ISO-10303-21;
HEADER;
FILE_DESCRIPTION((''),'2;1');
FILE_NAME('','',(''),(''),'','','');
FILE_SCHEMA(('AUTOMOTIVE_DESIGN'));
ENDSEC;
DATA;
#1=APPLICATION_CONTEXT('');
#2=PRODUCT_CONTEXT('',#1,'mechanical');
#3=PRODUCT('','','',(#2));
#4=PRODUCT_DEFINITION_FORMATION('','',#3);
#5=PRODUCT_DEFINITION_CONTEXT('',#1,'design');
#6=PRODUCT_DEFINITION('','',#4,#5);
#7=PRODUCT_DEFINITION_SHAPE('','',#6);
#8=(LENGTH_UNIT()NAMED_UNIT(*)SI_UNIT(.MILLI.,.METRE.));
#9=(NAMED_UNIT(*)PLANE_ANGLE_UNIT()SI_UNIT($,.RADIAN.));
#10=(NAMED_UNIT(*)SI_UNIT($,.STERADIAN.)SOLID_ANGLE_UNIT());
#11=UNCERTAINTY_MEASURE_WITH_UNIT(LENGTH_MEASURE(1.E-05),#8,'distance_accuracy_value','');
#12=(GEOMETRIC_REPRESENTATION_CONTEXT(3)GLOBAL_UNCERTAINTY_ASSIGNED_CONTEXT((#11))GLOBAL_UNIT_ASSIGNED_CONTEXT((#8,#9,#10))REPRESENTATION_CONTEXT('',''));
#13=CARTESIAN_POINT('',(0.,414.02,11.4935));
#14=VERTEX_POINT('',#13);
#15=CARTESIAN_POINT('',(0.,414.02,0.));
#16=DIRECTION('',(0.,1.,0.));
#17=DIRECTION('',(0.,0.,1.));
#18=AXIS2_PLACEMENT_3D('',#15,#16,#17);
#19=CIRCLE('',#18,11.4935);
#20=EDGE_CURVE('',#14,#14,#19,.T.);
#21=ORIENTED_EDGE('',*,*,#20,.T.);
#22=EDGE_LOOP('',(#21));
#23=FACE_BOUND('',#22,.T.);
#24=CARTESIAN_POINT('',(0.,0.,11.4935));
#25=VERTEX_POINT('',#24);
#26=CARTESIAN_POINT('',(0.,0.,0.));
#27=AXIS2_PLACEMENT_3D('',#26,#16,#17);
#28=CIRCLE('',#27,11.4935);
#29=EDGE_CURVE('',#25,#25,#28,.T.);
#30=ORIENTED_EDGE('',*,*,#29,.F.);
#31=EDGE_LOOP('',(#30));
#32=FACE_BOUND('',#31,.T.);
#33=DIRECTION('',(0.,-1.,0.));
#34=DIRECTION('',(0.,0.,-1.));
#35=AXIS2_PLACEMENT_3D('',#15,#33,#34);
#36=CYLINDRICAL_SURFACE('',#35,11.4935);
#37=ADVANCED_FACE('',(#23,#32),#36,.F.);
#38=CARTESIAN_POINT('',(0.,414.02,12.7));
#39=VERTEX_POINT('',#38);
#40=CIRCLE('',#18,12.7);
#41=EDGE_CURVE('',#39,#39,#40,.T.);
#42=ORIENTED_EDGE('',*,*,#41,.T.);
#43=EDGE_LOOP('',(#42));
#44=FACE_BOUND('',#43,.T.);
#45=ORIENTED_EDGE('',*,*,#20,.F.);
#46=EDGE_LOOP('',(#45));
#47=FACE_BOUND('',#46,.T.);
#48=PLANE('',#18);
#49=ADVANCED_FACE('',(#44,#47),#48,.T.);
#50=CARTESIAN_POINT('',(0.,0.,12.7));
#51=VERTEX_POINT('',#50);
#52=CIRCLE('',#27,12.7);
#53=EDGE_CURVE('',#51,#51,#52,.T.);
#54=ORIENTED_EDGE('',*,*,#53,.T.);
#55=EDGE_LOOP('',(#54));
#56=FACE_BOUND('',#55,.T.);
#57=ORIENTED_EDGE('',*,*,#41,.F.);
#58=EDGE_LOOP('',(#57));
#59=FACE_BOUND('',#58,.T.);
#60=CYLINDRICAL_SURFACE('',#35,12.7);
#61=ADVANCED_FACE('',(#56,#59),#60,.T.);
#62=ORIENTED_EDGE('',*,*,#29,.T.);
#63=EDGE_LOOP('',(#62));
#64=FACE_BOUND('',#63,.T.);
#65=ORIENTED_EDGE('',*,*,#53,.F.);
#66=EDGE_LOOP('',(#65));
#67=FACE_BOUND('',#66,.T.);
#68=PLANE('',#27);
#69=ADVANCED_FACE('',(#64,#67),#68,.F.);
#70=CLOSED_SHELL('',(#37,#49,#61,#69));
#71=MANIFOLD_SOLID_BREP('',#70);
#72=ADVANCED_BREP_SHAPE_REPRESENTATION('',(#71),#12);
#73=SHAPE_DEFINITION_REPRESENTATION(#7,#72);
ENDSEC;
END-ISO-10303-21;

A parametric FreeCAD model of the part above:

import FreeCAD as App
import Part
import Sketcher

V = App.Vector
Q = App.Units.Quantity

doc = App.newDocument("Part")
body = doc.addObject("PartDesign::Body", "Body")

sketch1 = body.newObject("Sketcher::SketchObject", "Sketch")
sketch1.AttachmentSupport = (doc.getObject("XZ_Plane"), [""])
sketch1.MapMode = "FlatFace"
sketch1.addGeometry(Part.Circle(V(0, 0, 0), V(0, 0, 1), 13), False)
sketch1.addGeometry(Part.Circle(V(0, 0, 0), V(0, 0, 1), 11), False)
sketch1.addConstraint(Sketcher.Constraint("Coincident", 0, 3, -1, 1))
sketch1.addConstraint(Sketcher.Constraint("Coincident", 1, 3, -1, 1))
sketch1.addConstraint(Sketcher.Constraint("Diameter", 0, Q("1 in")))
sketch1.addConstraint(Sketcher.Constraint("Diameter", 1, Q("0.905 in")))
pad1 = body.newObject("PartDesign::Pad", "Pad")
pad1.Profile = sketch1
pad1.Length = Q("16.3 in")
pad1.Reversed = True

doc.recompute()
